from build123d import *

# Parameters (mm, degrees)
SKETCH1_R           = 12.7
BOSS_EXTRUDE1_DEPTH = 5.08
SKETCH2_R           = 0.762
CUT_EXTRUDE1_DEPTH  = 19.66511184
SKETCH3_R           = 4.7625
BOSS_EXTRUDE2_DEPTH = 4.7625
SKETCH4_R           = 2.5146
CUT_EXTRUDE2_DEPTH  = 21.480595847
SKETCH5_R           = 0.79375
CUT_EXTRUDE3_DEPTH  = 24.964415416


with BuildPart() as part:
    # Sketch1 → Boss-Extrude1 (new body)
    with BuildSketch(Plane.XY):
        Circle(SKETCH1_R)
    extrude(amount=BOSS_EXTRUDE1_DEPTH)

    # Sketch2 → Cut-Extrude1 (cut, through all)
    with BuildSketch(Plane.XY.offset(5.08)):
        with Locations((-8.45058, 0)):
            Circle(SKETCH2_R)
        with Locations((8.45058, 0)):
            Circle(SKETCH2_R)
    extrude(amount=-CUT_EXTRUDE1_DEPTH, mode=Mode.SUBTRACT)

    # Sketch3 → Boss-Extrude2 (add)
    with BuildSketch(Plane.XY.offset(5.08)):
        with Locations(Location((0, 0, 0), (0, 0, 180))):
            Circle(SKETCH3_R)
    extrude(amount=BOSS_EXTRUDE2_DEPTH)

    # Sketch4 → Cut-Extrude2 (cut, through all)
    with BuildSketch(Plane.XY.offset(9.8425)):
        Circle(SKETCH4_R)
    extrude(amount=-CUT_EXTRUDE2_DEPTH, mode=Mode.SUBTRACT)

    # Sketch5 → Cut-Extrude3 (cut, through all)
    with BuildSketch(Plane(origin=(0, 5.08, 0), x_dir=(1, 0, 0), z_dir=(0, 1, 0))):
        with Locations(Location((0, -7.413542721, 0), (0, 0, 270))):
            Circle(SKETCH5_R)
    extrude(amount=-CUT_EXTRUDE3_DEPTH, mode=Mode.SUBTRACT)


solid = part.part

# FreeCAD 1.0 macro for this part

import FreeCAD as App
import Part
import Sketcher
Q = App.Units.Quantity

doc = App.newDocument("Part")
params = doc.addObject("Spreadsheet::Sheet", "Params")
for row, (alias, value) in enumerate([
    ("sketch1_diameter", "1 in"),
    ("pad1_length", "0.2 in"),
    ("sketch2_diameter", "0.06 in"),
    ("sketch3_diameter", "0.375 in"),
    ("pad2_length", "0.1875 in"),
    ("sketch4_diameter", "0.198 in"),
    ("sketch5_diameter", "0.0625 in"),
], start=1):
    params.set(f"A{row}", alias)
    params.set(f"B{row}", "=" + value)
    params.setAlias(f"B{row}", alias)

body = doc.addObject("PartDesign::Body", "Body")

# Sketch on XY plane
sketch1 = doc.addObject("Sketcher::SketchObject", "Sketch")
body.addObject(sketch1)
sketch1.AttachmentSupport = (doc.XY_Plane, [""])
sketch1.MapMode = "FlatFace"
sketch1.addGeometry(Part.Circle(App.Vector(0, 0, 0), App.Vector(0, 0, 1), 13), False)
sketch1.addConstraint([
    Sketcher.Constraint("Coincident", 0, 3, -1, 1),
    Sketcher.Constraint("Diameter", 0, Q("1 in")),
])
sketch1.setExpression("Constraints[1]", "Params.sketch1_diameter")
pad1 = doc.addObject("PartDesign::Pad", "Pad")
body.addObject(pad1)
pad1.Profile = sketch1
pad1.setExpression("Length", "Params.pad1_length")

# Sketch on XY plane
sketch2 = doc.addObject("Sketcher::SketchObject", "Sketch001")
body.addObject(sketch2)
sketch2.AttachmentSupport = (doc.XY_Plane, [""])
sketch2.MapMode = "FlatFace"
sketch2.AttachmentOffset = App.Placement(App.Vector(0, 0, 0.2 * 25.4), App.Rotation())
sketch2.addGeometry([
    Part.Circle(App.Vector(-8.5, 0, 0), App.Vector(0, 0, 1), 0.8),
    Part.Circle(App.Vector(8.5, 0, 0), App.Vector(0, 0, 1), 0.8),
], False)
sketch2.addConstraint([
    Sketcher.Constraint("Equal", 0, 1),
    Sketcher.Constraint("Symmetric", 0, 3, 1, 3, -1, 1),
    Sketcher.Constraint("PointOnObject", 0, 3, -1),
    Sketcher.Constraint("Diameter", 0, Q("0.06 in")),
    Sketcher.Constraint("DistanceX", 0, 3, -1, 1, Q("0.3327 in")),
])
sketch2.setExpression("Constraints[3]", "Params.sketch2_diameter")
pocket1 = doc.addObject("PartDesign::Pocket", "Pocket")
body.addObject(pocket1)
pocket1.Profile = sketch2
pocket1.Type = "ThroughAll"

# Sketch on XY plane
sketch3 = doc.addObject("Sketcher::SketchObject", "Sketch002")
body.addObject(sketch3)
sketch3.AttachmentSupport = (doc.XY_Plane, [""])
sketch3.MapMode = "FlatFace"
sketch3.AttachmentOffset = App.Placement(App.Vector(0, 0, 0.2 * 25.4), App.Rotation())
sketch3.addGeometry(Part.Circle(App.Vector(0, 0, 0), App.Vector(0, 0, 1), 4.8), False)
sketch3.addConstraint([
    Sketcher.Constraint("Coincident", 0, 3, -1, 1),
    Sketcher.Constraint("Diameter", 0, Q("0.375 in")),
])
sketch3.setExpression("Constraints[1]", "Params.sketch3_diameter")
pad2 = doc.addObject("PartDesign::Pad", "Pad001")
body.addObject(pad2)
pad2.Profile = sketch3
pad2.setExpression("Length", "Params.pad2_length")

# Sketch on XY plane
sketch4 = doc.addObject("Sketcher::SketchObject", "Sketch003")
body.addObject(sketch4)
sketch4.AttachmentSupport = (doc.XY_Plane, [""])
sketch4.MapMode = "FlatFace"
sketch4.AttachmentOffset = App.Placement(App.Vector(0, 0, 0.3875 * 25.4), App.Rotation())
sketch4.addGeometry(Part.Circle(App.Vector(0, 0, 0), App.Vector(0, 0, 1), 2.5), False)
sketch4.addConstraint([
    Sketcher.Constraint("Coincident", 0, 3, -1, 1),
    Sketcher.Constraint("Diameter", 0, Q("0.198 in")),
])
sketch4.setExpression("Constraints[1]", "Params.sketch4_diameter")
pocket2 = doc.addObject("PartDesign::Pocket", "Pocket001")
body.addObject(pocket2)
pocket2.Profile = sketch4
pocket2.Type = "ThroughAll"

# Sketch on XZ plane
sketch5 = doc.addObject("Sketcher::SketchObject", "Sketch004")
body.addObject(sketch5)
sketch5.AttachmentSupport = (doc.XZ_Plane, [""])
sketch5.MapMode = "FlatFace"
sketch5.AttachmentOffset = App.Placement(App.Vector(0, 0, -0.2 * 25.4), App.Rotation())
sketch5.addGeometry(Part.Circle(App.Vector(0, 7.4, 0), App.Vector(0, 0, 1), 0.8), False)
sketch5.addConstraint([
    Sketcher.Constraint("PointOnObject", 0, 3, -2),
    Sketcher.Constraint("Diameter", 0, Q("0.0625 in")),
    Sketcher.Constraint("DistanceY", -1, 1, 0, 3, Q("7.413543 mm")),
])
sketch5.setExpression("Constraints[1]", "Params.sketch5_diameter")
pocket3 = doc.addObject("PartDesign::Pocket", "Pocket002")
body.addObject(pocket3)
pocket3.Profile = sketch5
pocket3.Type = "ThroughAll"
pocket3.Reversed = True

doc.recompute()
